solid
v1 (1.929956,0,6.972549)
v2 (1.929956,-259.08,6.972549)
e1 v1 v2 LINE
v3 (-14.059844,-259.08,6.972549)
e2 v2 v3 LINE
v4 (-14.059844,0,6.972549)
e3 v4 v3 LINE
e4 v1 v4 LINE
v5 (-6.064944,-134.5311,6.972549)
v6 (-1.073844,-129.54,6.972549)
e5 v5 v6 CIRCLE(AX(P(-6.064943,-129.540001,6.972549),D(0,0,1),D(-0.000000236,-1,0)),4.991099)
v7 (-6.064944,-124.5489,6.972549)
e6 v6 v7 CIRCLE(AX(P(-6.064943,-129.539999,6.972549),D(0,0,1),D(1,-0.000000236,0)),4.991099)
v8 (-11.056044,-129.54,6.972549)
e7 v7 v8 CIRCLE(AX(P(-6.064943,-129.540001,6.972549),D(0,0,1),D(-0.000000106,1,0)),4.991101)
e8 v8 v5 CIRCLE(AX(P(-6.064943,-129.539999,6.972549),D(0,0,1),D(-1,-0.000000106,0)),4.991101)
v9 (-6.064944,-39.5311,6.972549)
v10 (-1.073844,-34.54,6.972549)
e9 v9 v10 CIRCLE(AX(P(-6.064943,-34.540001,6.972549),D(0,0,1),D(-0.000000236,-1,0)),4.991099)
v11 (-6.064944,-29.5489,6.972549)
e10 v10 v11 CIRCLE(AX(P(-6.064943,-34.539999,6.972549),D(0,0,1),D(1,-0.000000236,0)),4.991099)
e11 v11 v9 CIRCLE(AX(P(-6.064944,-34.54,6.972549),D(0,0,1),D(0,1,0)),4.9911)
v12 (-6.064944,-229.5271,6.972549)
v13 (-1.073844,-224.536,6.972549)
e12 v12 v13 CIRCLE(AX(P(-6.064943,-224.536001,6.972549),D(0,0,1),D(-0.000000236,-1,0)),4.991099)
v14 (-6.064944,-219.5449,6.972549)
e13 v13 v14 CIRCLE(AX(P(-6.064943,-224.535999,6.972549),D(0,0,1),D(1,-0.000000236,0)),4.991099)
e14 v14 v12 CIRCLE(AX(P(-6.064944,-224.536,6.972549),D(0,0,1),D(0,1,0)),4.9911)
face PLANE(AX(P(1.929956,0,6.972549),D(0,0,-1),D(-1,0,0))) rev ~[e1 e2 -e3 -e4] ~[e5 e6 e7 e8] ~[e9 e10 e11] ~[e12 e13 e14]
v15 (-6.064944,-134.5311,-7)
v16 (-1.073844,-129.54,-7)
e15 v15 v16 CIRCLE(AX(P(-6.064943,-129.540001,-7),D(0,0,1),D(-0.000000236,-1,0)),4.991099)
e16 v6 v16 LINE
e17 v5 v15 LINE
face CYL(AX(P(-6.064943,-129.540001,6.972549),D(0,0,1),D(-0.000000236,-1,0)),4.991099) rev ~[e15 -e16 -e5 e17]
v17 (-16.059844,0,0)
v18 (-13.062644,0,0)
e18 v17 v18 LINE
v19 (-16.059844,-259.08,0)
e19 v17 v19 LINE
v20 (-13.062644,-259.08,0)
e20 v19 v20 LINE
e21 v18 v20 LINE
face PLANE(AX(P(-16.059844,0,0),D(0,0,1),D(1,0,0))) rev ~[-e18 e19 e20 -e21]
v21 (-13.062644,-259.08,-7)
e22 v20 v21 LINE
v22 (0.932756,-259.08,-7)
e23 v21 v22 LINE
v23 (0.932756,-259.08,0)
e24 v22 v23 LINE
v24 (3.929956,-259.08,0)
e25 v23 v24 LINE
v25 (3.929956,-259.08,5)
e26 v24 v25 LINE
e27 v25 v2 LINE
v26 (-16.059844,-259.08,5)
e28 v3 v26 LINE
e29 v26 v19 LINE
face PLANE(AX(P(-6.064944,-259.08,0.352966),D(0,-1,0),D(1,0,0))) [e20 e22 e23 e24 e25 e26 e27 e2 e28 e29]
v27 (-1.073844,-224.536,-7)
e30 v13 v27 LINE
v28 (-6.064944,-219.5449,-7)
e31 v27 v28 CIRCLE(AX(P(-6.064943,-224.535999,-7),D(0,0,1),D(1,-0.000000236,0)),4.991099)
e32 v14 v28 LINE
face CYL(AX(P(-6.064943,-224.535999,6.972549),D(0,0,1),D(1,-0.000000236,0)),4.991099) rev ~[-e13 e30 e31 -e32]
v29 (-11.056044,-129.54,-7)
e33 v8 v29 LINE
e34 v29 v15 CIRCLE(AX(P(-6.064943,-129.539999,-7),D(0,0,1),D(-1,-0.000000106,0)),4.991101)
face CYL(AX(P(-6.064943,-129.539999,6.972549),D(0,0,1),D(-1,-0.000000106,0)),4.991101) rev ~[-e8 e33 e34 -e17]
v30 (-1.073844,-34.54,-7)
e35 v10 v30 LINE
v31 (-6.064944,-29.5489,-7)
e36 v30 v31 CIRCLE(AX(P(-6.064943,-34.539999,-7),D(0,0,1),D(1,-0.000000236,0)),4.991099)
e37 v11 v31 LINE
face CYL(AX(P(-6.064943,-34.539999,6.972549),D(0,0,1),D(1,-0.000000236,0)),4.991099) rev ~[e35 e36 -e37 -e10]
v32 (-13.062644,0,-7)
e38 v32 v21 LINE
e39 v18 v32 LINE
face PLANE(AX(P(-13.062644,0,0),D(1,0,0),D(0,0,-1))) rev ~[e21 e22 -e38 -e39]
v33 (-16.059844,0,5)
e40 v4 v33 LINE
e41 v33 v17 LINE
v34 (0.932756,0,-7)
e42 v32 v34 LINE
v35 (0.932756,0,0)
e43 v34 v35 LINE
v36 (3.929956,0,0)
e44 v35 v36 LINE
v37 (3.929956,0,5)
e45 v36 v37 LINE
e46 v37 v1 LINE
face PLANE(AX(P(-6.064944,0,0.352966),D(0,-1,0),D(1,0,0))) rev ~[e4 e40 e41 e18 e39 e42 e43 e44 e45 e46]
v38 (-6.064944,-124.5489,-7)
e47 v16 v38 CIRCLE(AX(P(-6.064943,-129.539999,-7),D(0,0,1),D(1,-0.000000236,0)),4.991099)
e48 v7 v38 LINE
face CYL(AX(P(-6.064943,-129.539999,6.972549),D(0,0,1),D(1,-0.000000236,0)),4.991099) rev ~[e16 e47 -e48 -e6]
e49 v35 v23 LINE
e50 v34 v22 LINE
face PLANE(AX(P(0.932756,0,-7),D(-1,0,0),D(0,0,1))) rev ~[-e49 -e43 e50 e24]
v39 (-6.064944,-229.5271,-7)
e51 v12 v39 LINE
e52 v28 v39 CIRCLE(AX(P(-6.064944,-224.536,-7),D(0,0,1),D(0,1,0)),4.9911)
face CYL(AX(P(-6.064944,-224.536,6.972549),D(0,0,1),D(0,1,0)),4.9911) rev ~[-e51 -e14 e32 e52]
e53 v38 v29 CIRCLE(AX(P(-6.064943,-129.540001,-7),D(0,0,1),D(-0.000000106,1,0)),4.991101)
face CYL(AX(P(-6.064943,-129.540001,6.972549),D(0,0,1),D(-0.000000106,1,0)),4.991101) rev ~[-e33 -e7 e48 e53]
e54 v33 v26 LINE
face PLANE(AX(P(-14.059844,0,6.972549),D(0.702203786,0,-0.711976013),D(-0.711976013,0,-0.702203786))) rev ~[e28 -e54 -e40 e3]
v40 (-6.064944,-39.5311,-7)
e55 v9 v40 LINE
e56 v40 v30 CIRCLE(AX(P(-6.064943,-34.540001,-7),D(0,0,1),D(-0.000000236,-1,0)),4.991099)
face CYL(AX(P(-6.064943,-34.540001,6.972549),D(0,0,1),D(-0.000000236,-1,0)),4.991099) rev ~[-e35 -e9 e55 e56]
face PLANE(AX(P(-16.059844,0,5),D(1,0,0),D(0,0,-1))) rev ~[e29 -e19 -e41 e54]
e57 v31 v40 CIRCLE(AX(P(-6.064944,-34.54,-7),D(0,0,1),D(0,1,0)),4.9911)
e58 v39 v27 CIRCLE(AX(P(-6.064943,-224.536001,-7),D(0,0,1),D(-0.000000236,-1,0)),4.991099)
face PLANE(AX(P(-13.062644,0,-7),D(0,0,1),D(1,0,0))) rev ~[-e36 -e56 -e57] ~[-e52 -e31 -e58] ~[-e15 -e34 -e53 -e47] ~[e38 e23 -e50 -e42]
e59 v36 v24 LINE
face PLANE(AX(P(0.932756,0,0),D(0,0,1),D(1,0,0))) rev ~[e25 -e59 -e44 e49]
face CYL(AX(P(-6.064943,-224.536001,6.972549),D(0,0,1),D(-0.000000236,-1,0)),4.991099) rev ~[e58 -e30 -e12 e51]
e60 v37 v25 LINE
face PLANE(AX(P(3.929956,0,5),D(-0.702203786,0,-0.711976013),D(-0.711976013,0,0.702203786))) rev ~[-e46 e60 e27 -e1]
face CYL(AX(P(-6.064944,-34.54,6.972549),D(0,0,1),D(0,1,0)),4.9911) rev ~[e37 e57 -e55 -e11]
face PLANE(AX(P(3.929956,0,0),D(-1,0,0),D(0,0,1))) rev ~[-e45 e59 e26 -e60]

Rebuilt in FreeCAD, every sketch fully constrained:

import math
import FreeCAD as App
import Part
import Sketcher

V = App.Vector
Q = App.Units.Quantity


def add_polygon(sketch, points):
    """Adds a closed chain of lines whose ends are joined by coincident constraints."""
    first, n = sketch.GeometryCount, len(points)
    for a, b in zip(points, points[1:] + points[:1]):
        sketch.addGeometry(Part.LineSegment(App.Vector(*a, 0), App.Vector(*b, 0)), False)
    for i in range(n):
        sketch.addConstraint(Sketcher.Constraint("Coincident", first + i, 2, first + (i + 1) % n, 1))

doc = App.newDocument("Part")
body = doc.addObject("PartDesign::Body", "Body")

sketch1 = body.newObject("Sketcher::SketchObject", "Sketch")
sketch1.AttachmentSupport = (doc.getObject("XZ_Plane"), [""])
sketch1.MapMode = "FlatFace"
add_polygon(sketch1, [(-13.1, 0), (-13.1, -7), (0.9, -7), (0.9, 0), (3.9, 0), (3.9, 5), (1.9, 7), (-14.1, 7), (-16.1, 5), (-16.1, 0)])
sketch1.addConstraint([
    Sketcher.Constraint("Vertical", 0),
    Sketcher.Constraint("Horizontal", 1),
    Sketcher.Constraint("Vertical", 2),
    Sketcher.Constraint("Horizontal", 3),
    Sketcher.Constraint("Vertical", 4),
    Sketcher.Constraint("Horizontal", 6),
    Sketcher.Constraint("Vertical", 8),
    Sketcher.Constraint("Horizontal", 9),
    Sketcher.Constraint("PointOnObject", 2, 2, -1),
    Sketcher.Constraint("PointOnObject", 8, 2, -1),
    Sketcher.Constraint("Horizontal", 4, 2, 7, 2),
    Sketcher.Constraint("Equal", 3, 9),
    Sketcher.Constraint("Equal", 5, 7),
    Sketcher.Constraint("DistanceX", 1, 1, 1, 2, Q("0.551 in")),
    Sketcher.Constraint("DistanceX", 3, 1, 3, 2, Q("0.118 in")),
    Sketcher.Constraint("DistanceX", 6, 2, 6, 1, Q("15.9898 mm")),
    Sketcher.Constraint("DistanceY", 0, 2, 0, 1, Q("7 mm")),
    Sketcher.Constraint("DistanceY", 4, 1, 4, 2, Q("5 mm")),
    Sketcher.Constraint("DistanceY", -1, 1, 5, 2, Q("6.972549 mm")),
    Sketcher.Constraint("DistanceX", 0, 2, -1, 1, Q("13.062644 mm")),
])
pad1 = body.newObject("PartDesign::Pad", "Pad")
pad1.Profile = sketch1
pad1.Length = Q("10.2 in")

sketch2 = body.newObject("Sketcher::SketchObject", "Sketch001")
sketch2.AttachmentSupport = (doc.getObject("XY_Plane"), [""])
sketch2.MapMode = "FlatFace"
sketch2.AttachmentOffset = App.Placement(V(0, 0, 6.972549), App.Rotation())
sketch2.addGeometry([
    Part.ArcOfCircle(Part.Circle(V(-6.1, -129.5, 0), V(0, 0, 1), 5), math.radians(90), math.radians(180)),
    Part.ArcOfCircle(Part.Circle(V(-6.1, -129.5, 0), V(0, 0, 1), 5), math.radians(-180), math.radians(-90)),
    Part.ArcOfCircle(Part.Circle(V(-6.1, -129.5, 0), V(0, 0, 1), 5), math.radians(-90), math.radians(0)),
    Part.ArcOfCircle(Part.Circle(V(-6.1, -129.5, 0), V(0, 0, 1), 5), math.radians(0), math.radians(90)),
    Part.ArcOfCircle(Part.Circle(V(-6.1, -34.5, 0), V(0, 0, 1), 5), math.radians(90), math.radians(270)),
    Part.ArcOfCircle(Part.Circle(V(-6.1, -34.5, 0), V(0, 0, 1), 5), math.radians(-90), math.radians(0)),
    Part.ArcOfCircle(Part.Circle(V(-6.1, -34.5, 0), V(0, 0, 1), 5), math.radians(0), math.radians(90)),
    Part.ArcOfCircle(Part.Circle(V(-6.1, -224.5, 0), V(0, 0, 1), 5), math.radians(0), math.radians(90)),
    Part.ArcOfCircle(Part.Circle(V(-6.1, -224.5, 0), V(0, 0, 1), 5), math.radians(90), math.radians(270)),
    Part.ArcOfCircle(Part.Circle(V(-6.1, -224.5, 0), V(0, 0, 1), 5), math.radians(-90), math.radians(0)),
], False)
sketch2.addConstraint([
    Sketcher.Constraint("Tangent", 0, 2, 1, 1),
    Sketcher.Constraint("Tangent", 1, 2, 2, 1),
    Sketcher.Constraint("Tangent", 2, 2, 3, 1),
    Sketcher.Constraint("Tangent", 3, 2, 0, 1),
    Sketcher.Constraint("Tangent", 4, 2, 5, 1),
    Sketcher.Constraint("Tangent", 5, 2, 6, 1),
    Sketcher.Constraint("Tangent", 6, 2, 4, 1),
    Sketcher.Constraint("Tangent", 7, 2, 8, 1),
    Sketcher.Constraint("Tangent", 8, 2, 9, 1),
    Sketcher.Constraint("Tangent", 9, 2, 7, 1),
    Sketcher.Constraint("Equal", 0, 1),
    Sketcher.Constraint("Equal", 3, 4),
    Sketcher.Constraint("Equal", 6, 7),
    Sketcher.Constraint("Horizontal", 3, 3, 0, 2),
    Sketcher.Constraint("Horizontal", 0, 2, 2, 2),
    Sketcher.Constraint("Horizontal", 6, 3, 5, 2),
    Sketcher.Constraint("Horizontal", 8, 3, 9, 2),
    Sketcher.Constraint("Vertical", 3, 3, 4, 3),
    Sketcher.Constraint("Vertical", 6, 3, 7, 3),
    Sketcher.Constraint("Vertical", 9, 3, 1, 2),
    Sketcher.Constraint("Vertical", 1, 2, 3, 2),
    Sketcher.Constraint("Vertical", 3, 2, 4, 2),
    Sketcher.Constraint("Vertical", 4, 2, 6, 2),
    Sketcher.Constraint("Vertical", 6, 2, 7, 2),
    Sketcher.Constraint("Vertical", 7, 2, 8, 2),
    Sketcher.Constraint("DistanceY", 0, 3, -1, 1, Q("5.1 in")),
    Sketcher.Constraint("Radius", 0, Q("0.1965 in")),
    Sketcher.Constraint("DistanceY", 7, 3, -1, 1, Q("8.84 in")),
    Sketcher.Constraint("DistanceY", 4, 3, -1, 1, Q("34.54 mm")),
    Sketcher.Constraint("DistanceX", 0, 3, -1, 1, Q("6.064943 mm")),
])
pocket1 = body.newObject("PartDesign::Pocket", "Pocket")
pocket1.Profile = sketch2
pocket1.Type = "ThroughAll"

doc.recompute()
